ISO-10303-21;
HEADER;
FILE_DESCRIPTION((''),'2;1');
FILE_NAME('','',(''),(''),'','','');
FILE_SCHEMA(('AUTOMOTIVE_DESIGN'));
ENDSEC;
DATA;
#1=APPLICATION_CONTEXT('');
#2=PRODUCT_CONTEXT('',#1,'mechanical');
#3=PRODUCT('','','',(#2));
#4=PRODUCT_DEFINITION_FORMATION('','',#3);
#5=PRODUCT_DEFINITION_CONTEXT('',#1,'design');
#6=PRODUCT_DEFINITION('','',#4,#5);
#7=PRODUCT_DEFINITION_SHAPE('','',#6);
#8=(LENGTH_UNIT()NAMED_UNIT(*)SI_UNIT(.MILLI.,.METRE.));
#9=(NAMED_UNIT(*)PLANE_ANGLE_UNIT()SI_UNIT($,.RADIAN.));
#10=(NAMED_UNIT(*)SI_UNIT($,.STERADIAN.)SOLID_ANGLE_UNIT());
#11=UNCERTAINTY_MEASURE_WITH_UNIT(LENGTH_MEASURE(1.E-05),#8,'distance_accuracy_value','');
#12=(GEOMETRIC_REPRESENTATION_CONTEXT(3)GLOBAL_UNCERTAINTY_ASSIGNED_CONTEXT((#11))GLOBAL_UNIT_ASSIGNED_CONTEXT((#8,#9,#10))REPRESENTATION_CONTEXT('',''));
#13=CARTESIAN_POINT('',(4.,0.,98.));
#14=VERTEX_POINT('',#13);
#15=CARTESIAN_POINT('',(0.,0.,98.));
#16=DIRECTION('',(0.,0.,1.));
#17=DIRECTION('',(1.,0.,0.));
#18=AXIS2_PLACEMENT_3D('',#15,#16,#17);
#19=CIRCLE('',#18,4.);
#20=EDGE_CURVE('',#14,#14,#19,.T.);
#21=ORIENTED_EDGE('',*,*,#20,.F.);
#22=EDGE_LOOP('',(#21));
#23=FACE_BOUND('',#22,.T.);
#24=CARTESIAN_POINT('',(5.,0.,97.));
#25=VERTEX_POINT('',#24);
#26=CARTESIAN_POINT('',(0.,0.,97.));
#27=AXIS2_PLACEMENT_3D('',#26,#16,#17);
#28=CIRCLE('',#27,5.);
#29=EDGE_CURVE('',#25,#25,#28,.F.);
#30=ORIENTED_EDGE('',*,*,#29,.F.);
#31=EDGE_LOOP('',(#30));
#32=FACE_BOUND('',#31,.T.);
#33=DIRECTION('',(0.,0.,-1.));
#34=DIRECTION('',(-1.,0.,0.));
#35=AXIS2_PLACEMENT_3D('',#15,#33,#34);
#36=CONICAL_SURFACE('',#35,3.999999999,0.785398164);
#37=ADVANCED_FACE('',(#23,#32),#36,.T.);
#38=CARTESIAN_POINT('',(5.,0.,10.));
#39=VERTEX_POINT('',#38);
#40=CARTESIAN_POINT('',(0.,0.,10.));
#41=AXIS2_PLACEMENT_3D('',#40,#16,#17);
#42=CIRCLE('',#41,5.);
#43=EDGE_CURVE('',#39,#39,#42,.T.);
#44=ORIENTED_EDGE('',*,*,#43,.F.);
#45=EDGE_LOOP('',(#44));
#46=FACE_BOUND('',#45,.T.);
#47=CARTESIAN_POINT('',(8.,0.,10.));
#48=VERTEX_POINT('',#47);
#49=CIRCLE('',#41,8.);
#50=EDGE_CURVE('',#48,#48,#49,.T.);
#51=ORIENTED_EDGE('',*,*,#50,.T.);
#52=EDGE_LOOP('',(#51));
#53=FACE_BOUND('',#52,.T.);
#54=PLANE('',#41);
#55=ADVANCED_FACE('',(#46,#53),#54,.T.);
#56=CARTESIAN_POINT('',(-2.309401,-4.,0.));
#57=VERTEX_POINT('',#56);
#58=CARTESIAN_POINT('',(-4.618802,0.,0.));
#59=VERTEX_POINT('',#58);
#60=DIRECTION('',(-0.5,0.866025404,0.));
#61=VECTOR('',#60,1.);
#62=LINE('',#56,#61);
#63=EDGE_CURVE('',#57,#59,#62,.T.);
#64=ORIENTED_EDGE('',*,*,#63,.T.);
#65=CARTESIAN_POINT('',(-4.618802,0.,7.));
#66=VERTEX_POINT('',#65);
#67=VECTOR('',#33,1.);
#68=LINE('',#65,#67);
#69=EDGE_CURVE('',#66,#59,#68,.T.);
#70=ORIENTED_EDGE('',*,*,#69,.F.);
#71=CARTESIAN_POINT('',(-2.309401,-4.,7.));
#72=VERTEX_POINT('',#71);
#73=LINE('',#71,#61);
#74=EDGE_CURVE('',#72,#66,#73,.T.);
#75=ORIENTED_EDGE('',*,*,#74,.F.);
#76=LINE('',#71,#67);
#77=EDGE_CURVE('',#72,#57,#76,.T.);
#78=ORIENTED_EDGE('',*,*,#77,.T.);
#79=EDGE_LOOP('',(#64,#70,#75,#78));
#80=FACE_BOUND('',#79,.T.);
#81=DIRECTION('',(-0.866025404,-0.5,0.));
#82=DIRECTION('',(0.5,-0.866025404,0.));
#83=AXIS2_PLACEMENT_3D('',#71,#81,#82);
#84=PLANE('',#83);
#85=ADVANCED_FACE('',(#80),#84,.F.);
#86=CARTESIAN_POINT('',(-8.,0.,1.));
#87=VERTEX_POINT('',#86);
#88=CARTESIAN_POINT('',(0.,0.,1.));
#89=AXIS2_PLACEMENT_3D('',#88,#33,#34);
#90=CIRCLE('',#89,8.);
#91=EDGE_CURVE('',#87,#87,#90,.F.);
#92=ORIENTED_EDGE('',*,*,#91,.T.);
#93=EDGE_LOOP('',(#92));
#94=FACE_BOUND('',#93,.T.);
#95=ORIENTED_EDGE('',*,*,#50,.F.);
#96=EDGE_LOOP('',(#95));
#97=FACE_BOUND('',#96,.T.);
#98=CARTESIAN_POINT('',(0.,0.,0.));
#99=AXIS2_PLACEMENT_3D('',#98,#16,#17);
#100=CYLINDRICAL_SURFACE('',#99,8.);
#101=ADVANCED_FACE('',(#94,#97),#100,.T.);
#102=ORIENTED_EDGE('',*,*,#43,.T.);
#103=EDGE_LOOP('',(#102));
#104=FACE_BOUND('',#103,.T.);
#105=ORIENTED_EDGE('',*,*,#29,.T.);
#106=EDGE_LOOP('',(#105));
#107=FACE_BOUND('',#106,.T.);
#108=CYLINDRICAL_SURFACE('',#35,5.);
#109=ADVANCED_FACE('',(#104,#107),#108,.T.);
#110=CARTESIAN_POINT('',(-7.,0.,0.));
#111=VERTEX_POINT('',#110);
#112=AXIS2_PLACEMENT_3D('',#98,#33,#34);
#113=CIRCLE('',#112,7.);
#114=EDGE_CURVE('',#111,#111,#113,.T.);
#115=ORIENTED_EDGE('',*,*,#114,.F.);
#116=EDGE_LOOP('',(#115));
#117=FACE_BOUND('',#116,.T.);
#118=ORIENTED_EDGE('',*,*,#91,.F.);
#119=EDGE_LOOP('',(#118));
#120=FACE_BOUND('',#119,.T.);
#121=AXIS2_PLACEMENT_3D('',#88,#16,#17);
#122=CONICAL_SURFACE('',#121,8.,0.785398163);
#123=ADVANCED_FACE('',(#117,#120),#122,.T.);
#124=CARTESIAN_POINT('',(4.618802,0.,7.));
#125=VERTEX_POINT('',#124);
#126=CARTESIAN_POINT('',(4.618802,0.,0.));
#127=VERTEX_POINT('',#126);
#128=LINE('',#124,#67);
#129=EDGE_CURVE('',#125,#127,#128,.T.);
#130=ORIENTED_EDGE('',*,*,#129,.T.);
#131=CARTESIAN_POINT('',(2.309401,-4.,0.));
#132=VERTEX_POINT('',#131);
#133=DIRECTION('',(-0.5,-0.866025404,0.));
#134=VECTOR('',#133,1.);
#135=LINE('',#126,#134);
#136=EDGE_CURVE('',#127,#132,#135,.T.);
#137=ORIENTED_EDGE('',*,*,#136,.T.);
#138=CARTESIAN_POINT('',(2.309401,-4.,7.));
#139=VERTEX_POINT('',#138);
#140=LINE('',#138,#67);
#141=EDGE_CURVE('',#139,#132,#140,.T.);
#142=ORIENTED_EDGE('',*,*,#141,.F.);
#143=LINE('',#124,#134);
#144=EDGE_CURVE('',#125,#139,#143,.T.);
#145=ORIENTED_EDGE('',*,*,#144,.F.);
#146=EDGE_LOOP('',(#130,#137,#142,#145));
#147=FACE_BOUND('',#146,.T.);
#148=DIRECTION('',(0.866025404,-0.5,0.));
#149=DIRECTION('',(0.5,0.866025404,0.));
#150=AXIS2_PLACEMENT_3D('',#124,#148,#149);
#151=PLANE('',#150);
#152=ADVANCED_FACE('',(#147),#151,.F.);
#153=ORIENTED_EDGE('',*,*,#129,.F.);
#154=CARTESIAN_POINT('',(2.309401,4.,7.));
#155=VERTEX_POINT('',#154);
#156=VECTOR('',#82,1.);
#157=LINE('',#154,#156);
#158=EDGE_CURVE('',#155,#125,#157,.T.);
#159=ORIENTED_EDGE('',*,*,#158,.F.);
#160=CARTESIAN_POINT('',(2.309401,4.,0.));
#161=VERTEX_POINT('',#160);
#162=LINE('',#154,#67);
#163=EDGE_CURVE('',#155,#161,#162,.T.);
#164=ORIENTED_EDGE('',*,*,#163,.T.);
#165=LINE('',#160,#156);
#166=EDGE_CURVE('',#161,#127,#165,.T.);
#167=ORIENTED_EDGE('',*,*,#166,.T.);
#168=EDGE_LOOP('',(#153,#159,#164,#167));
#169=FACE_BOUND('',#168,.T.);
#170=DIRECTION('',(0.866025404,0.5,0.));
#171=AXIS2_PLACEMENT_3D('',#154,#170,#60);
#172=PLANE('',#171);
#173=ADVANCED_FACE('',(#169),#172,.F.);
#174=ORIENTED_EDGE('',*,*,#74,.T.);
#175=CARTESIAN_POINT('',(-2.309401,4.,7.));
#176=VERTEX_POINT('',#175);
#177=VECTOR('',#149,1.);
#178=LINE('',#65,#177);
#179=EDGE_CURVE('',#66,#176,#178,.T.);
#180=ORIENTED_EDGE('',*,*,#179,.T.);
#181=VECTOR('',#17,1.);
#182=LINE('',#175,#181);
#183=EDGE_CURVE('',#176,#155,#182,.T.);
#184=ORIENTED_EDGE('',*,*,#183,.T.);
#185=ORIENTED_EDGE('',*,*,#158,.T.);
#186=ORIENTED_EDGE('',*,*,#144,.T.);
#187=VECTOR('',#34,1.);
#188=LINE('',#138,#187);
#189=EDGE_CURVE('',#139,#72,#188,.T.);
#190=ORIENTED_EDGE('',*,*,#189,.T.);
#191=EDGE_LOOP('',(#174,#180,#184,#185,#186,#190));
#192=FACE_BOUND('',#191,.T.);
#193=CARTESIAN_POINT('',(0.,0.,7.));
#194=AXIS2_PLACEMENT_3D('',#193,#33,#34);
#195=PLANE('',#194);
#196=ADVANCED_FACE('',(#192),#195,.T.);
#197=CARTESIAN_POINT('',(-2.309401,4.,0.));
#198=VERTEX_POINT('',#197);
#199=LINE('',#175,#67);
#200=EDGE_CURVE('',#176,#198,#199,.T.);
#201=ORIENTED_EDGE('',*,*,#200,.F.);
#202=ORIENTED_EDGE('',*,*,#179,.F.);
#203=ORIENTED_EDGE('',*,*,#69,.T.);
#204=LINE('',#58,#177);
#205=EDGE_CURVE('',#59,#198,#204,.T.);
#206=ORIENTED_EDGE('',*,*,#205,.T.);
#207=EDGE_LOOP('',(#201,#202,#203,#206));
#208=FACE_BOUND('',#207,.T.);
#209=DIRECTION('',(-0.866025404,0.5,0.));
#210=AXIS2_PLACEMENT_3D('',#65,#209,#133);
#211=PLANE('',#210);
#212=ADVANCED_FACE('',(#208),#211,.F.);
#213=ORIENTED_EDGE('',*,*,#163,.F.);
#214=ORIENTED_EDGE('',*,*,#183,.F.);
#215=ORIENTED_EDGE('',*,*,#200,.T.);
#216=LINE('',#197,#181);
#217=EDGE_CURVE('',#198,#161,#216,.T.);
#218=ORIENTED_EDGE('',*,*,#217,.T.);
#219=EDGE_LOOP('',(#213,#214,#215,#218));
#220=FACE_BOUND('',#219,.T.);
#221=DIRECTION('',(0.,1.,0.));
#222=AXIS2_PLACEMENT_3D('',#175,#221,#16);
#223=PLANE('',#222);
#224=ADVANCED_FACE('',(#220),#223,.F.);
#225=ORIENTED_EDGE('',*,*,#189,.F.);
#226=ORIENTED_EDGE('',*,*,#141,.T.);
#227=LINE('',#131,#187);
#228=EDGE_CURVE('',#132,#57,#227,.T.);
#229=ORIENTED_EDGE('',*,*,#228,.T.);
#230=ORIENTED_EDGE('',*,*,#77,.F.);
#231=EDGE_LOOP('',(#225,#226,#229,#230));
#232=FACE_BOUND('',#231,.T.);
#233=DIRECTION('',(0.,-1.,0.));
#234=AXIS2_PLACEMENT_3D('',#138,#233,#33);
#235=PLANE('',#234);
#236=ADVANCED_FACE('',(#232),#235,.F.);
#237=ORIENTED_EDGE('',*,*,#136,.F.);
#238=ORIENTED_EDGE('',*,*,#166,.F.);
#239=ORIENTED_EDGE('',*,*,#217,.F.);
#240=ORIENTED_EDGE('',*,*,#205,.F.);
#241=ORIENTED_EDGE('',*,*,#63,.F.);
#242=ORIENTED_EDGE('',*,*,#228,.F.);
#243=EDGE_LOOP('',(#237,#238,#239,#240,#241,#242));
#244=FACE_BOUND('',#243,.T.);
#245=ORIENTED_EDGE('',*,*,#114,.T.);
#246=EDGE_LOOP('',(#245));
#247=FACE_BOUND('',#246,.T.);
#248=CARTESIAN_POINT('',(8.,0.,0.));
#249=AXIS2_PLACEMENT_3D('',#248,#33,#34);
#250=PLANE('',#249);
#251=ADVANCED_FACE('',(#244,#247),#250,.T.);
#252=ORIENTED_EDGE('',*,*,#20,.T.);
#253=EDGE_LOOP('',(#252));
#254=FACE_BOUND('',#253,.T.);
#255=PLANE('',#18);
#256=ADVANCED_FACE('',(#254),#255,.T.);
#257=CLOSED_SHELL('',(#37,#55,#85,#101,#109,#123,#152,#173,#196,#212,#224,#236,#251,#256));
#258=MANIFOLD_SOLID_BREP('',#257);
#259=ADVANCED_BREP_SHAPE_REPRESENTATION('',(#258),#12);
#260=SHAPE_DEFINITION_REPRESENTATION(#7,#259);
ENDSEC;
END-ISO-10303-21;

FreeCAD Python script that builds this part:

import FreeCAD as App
import Part
import Sketcher

V = App.Vector
Q = App.Units.Quantity


def edges_at(feature, points):
    """Names of the edges that pass closest to the given points."""
    edges = feature.Shape.Edges
    near = lambda p: min(range(len(edges)), key=lambda i: edges[i].distToShape(Part.Vertex(*p))[0])
    return sorted({f"Edge{near(p) + 1}" for p in points})

doc = App.newDocument("Part")
body = doc.addObject("PartDesign::Body", "Body")

sketch1 = doc.addObject("Sketcher::SketchObject", "Sketch")
body.addObject(sketch1)
sketch1.AttachmentSupport = (doc.XZ_Plane, [""])
sketch1.MapMode = "FlatFace"
sketch1.addGeometry(Part.LineSegment(V(0, 0, 0), V(0, 10, 0)), False)
sketch1.addGeometry(Part.LineSegment(V(0, 10, 0), V(8, 10, 0)), False)
sketch1.addGeometry(Part.LineSegment(V(8, 10, 0), V(8, 0, 0)), False)
sketch1.addGeometry(Part.LineSegment(V(8, 0, 0), V(0, 0, 0)), False)
sketch1.addConstraint(Sketcher.Constraint("Coincident", 0, 2, 1, 1))
sketch1.addConstraint(Sketcher.Constraint("Coincident", 1, 2, 2, 1))
sketch1.addConstraint(Sketcher.Constraint("Coincident", 2, 2, 3, 1))
sketch1.addConstraint(Sketcher.Constraint("Coincident", 3, 2, 0, 1))
sketch1.addConstraint(Sketcher.Constraint("Vertical", 0))
sketch1.addConstraint(Sketcher.Constraint("Horizontal", 1))
sketch1.addConstraint(Sketcher.Constraint("Vertical", 2))
sketch1.addConstraint(Sketcher.Constraint("Horizontal", 3))
sketch1.addConstraint(Sketcher.Constraint("Coincident", 3, 2, -1, 1))
sketch1.addConstraint(Sketcher.Constraint("DistanceX", 1, 1, 1, 2, 8.0))
sketch1.addConstraint(Sketcher.Constraint("DistanceY", 0, 1, 0, 2, 10.0))
revolution = doc.addObject("PartDesign::Revolution", "Revolution")
body.addObject(revolution)
revolution.Profile = sketch1
revolution.ReferenceAxis = (sketch1, ["V_Axis"])
revolution.Angle = 360

sketch2 = doc.addObject("Sketcher::SketchObject", "Sketch001")
body.addObject(sketch2)
sketch2.AttachmentSupport = (doc.XY_Plane, [""])
sketch2.MapMode = "FlatFace"
sketch2.AttachmentOffset = App.Placement(V(0, 0, 10), App.Rotation())
sketch2.addGeometry(Part.Circle(V(0, 0, 0), V(0, 0, 1), 5), False)
sketch2.addConstraint(Sketcher.Constraint("Coincident", 0, 3, -1, 1))
sketch2.addConstraint(Sketcher.Constraint("Diameter", 0, 10.0))
pad1 = doc.addObject("PartDesign::Pad", "Pad")
body.addObject(pad1)
pad1.Profile = sketch2
pad1.Length = 88

sketch3 = doc.addObject("Sketcher::SketchObject", "Sketch002")
body.addObject(sketch3)
sketch3.AttachmentSupport = (doc.XY_Plane, [""])
sketch3.MapMode = "FlatFace"
sketch3.addGeometry(Part.LineSegment(V(2.3, 4, 0), V(4.6, 0, 0)), False)
sketch3.addGeometry(Part.LineSegment(V(4.6, 0, 0), V(2.3, -4, 0)), False)
sketch3.addGeometry(Part.LineSegment(V(2.3, -4, 0), V(-2.3, -4, 0)), False)
sketch3.addGeometry(Part.LineSegment(V(-2.3, -4, 0), V(-4.6, 0, 0)), False)
sketch3.addGeometry(Part.LineSegment(V(-4.6, 0, 0), V(-2.3, 4, 0)), False)
sketch3.addGeometry(Part.LineSegment(V(-2.3, 4, 0), V(2.3, 4, 0)), False)
sketch3.addConstraint(Sketcher.Constraint("Coincident", 0, 2, 1, 1))
sketch3.addConstraint(Sketcher.Constraint("Coincident", 1, 2, 2, 1))
sketch3.addConstraint(Sketcher.Constraint("Coincident", 2, 2, 3, 1))
sketch3.addConstraint(Sketcher.Constraint("Coincident", 3, 2, 4, 1))
sketch3.addConstraint(Sketcher.Constraint("Coincident", 4, 2, 5, 1))
sketch3.addConstraint(Sketcher.Constraint("Coincident", 5, 2, 0, 1))
sketch3.addConstraint(Sketcher.Constraint("Horizontal", 2))
sketch3.addConstraint(Sketcher.Constraint("Horizontal", 5))
sketch3.addConstraint(Sketcher.Constraint("Symmetric", 0, 2, 3, 2, -1, 1))
sketch3.addConstraint(Sketcher.Constraint("Symmetric", 1, 2, 4, 2, -1, 1))
sketch3.addConstraint(Sketcher.Constraint("PointOnObject", 0, 2, -1))
sketch3.addConstraint(Sketcher.Constraint("Parallel", 0, 3))
sketch3.addConstraint(Sketcher.Constraint("Vertical", 2, 2, 4, 2))
sketch3.addConstraint(Sketcher.Constraint("Angle", 0, Q("-60 deg")))
sketch3.addConstraint(Sketcher.Constraint("DistanceY", 1, 2, -1, 1, 4.0))
sketch3.addConstraint(Sketcher.Constraint("DistanceX", -1, 1, 1, 2, 2.309401))
pocket1 = doc.addObject("PartDesign::Pocket", "Pocket")
body.addObject(pocket1)
pocket1.Profile = sketch3
pocket1.Length = 7
pocket1.Reversed = True
doc.recompute()

chamfer = doc.addObject("PartDesign::Chamfer", "Chamfer")
body.addObject(chamfer)
chamfer.Base = (pocket1, edges_at(pocket1, [(-5, 0, 98), (-8, 0, 0)]))
chamfer.ChamferType = "Two distances"
chamfer.Size = 1
chamfer.Size2 = 1

doc.recompute()
